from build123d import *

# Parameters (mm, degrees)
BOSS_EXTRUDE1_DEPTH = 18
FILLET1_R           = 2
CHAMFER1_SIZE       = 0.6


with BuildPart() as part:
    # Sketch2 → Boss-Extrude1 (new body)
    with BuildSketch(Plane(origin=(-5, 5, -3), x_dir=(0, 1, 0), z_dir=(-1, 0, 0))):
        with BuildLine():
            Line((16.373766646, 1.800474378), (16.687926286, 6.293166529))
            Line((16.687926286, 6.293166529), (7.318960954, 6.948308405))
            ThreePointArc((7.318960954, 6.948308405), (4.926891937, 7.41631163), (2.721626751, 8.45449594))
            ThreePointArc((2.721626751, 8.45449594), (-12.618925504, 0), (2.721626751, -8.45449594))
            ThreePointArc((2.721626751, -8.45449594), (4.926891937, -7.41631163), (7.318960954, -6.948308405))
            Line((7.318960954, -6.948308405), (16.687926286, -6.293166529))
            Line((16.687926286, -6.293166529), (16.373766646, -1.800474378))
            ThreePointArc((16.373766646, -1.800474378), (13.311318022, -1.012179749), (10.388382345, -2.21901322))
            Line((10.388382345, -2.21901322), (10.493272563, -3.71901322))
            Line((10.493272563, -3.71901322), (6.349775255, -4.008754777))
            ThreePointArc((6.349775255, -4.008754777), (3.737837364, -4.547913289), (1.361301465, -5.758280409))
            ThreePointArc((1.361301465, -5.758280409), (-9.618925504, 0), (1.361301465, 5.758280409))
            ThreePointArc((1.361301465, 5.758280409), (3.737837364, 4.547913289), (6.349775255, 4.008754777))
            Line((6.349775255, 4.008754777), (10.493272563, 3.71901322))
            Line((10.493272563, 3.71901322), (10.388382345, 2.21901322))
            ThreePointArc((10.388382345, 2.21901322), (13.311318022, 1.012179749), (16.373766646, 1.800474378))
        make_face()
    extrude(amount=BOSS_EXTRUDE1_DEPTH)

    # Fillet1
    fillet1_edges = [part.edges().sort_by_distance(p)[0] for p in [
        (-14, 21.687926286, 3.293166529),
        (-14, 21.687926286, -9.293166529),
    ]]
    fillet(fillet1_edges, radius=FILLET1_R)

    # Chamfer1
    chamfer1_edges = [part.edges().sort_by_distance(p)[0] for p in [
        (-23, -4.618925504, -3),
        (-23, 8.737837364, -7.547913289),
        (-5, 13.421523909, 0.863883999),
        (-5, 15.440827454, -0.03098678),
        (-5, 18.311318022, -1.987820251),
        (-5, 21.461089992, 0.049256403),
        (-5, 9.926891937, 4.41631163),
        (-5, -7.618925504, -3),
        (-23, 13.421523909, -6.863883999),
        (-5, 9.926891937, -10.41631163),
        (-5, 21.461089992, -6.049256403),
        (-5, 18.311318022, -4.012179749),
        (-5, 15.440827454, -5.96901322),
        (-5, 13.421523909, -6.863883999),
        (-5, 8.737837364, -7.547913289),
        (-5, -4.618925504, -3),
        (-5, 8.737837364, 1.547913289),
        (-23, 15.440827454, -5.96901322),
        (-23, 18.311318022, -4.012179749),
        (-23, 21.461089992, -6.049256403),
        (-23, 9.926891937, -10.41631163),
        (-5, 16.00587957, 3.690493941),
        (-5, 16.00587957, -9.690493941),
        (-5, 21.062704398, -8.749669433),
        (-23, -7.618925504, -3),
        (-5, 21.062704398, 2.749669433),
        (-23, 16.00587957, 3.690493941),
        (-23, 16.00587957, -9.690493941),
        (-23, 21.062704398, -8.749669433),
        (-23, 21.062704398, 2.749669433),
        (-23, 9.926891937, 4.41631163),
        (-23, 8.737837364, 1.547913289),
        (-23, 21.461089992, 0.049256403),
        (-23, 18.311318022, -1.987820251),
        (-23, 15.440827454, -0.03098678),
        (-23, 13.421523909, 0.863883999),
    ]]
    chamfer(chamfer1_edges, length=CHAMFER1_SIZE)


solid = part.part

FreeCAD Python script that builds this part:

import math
import FreeCAD as App
import Part
import Sketcher
Q = App.Units.Quantity


def edges_at(feature, points):
    """Names of the edges that pass closest to the given points."""
    edges = feature.Shape.Edges
    near = lambda p: min(range(len(edges)), key=lambda i: edges[i].distToShape(Part.Vertex(*p))[0])
    return sorted({f"Edge{near(p) + 1}" for p in points})

doc = App.newDocument("Part")
body = doc.addObject("PartDesign::Body", "Body")

sketch1 = body.newObject("Sketcher::SketchObject", "Sketch")
sketch1.AttachmentSupport = (doc.getObject("YZ_Plane"), [""])
sketch1.MapMode = "FlatFace"
sketch1.AttachmentOffset = App.Placement(App.Vector(0, 0, -5), App.Rotation())
sketch1.addGeometry(Part.LineSegment(App.Vector(21.373767, -4.800474, 0), App.Vector(21.687926, -9.293167, 0)), False)
sketch1.addGeometry(Part.LineSegment(App.Vector(21.687926, -9.293167, 0), App.Vector(12.318961, -9.948308, 0)), False)
sketch1.addGeometry(Part.ArcOfCircle(Part.Circle(App.Vector(13.009667, -19.825861, 0), App.Vector(0, 0, 1), 9.901673), math.radians(94), math.radians(122.279862)), False)
sketch1.addGeometry(Part.ArcOfCircle(Part.Circle(App.Vector(2.381074, -3, 0), App.Vector(0, 0, 1), 10), math.radians(57.720138), math.radians(302.279862)), False)
sketch1.addGeometry(Part.ArcOfCircle(Part.Circle(App.Vector(13.009667, 13.825861, 0), App.Vector(0, 0, 1), 9.901673), math.radians(-122.279862), math.radians(-94)), False)
sketch1.addGeometry(Part.LineSegment(App.Vector(12.318961, 3.948308, 0), App.Vector(21.687926, 3.293167, 0)), False)
sketch1.addGeometry(Part.LineSegment(App.Vector(21.687926, 3.293167, 0), App.Vector(21.373767, -1.199526, 0)), False)
sketch1.addGeometry(Part.ArcOfCircle(Part.Circle(App.Vector(18.6601, 3, 0), App.Vector(0, 0, 1), 5), math.radians(-130.869898), math.radians(-57.130102)), False)
sketch1.addGeometry(Part.LineSegment(App.Vector(15.388382, -0.780987, 0), App.Vector(15.493273, 0.719013, 0)), False)
sketch1.addGeometry(Part.LineSegment(App.Vector(15.493273, 0.719013, 0), App.Vector(11.349775, 1.008755, 0)), False)
sketch1.addGeometry(Part.ArcOfCircle(Part.Circle(App.Vector(12.04734, 10.984395, 0), App.Vector(0, 0, 1), 10), math.radians(-124.652925), math.radians(-94)), False)
sketch1.addGeometry(Part.ArcOfCircle(Part.Circle(App.Vector(2.381074, -3, 0), App.Vector(0, 0, 1), 7), math.radians(55.347075), math.radians(304.652925)), False)
sketch1.addGeometry(Part.ArcOfCircle(Part.Circle(App.Vector(12.04734, -16.984395, 0), App.Vector(0, 0, 1), 10), math.radians(94), math.radians(124.652925)), False)
sketch1.addGeometry(Part.LineSegment(App.Vector(11.349775, -7.008755, 0), App.Vector(15.493273, -6.719013, 0)), False)
sketch1.addGeometry(Part.LineSegment(App.Vector(15.493273, -6.719013, 0), App.Vector(15.388382, -5.219013, 0)), False)
sketch1.addGeometry(Part.ArcOfCircle(Part.Circle(App.Vector(18.6601, -9, 0), App.Vector(0, 0, 1), 5), math.radians(57.130102), math.radians(130.869898)), False)
sketch1.addConstraint(Sketcher.Constraint("Coincident", 0, 2, 1, 1))
sketch1.addConstraint(Sketcher.Constraint("Tangent", 1, 2, 2, 1))
sketch1.addConstraint(Sketcher.Constraint("Tangent", 2, 2, 3, 2))
sketch1.addConstraint(Sketcher.Constraint("Tangent", 3, 1, 4, 1))
sketch1.addConstraint(Sketcher.Constraint("Tangent", 4, 2, 5, 1))
sketch1.addConstraint(Sketcher.Constraint("Coincident", 5, 2, 6, 1))
sketch1.addConstraint(Sketcher.Constraint("Coincident", 6, 2, 7, 2))
sketch1.addConstraint(Sketcher.Constraint("Coincident", 7, 1, 8, 1))
sketch1.addConstraint(Sketcher.Constraint("Coincident", 8, 2, 9, 1))
sketch1.addConstraint(Sketcher.Constraint("Tangent", 9, 2, 10, 2))
sketch1.addConstraint(Sketcher.Constraint("Tangent", 10, 1, 11, 1))
sketch1.addConstraint(Sketcher.Constraint("Tangent", 11, 2, 12, 2))
sketch1.addConstraint(Sketcher.Constraint("Tangent", 12, 1, 13, 1))
sketch1.addConstraint(Sketcher.Constraint("Coincident", 13, 2, 14, 1))
sketch1.addConstraint(Sketcher.Constraint("Coincident", 14, 2, 15, 2))
sketch1.addConstraint(Sketcher.Constraint("Coincident", 15, 1, 0, 1))
sketch1.addConstraint(Sketcher.Constraint("Coincident", 11, 3, 3, 3))
sketch1.addConstraint(Sketcher.Constraint("Equal", 2, 4))
sketch1.addConstraint(Sketcher.Constraint("Equal", 3, 10))
sketch1.addConstraint(Sketcher.Constraint("Equal", 10, 12))
sketch1.addConstraint(Sketcher.Constraint("Equal", 7, 15))
sketch1.addConstraint(Sketcher.Constraint("Perpendicular", 0, 1))
sketch1.addConstraint(Sketcher.Constraint("Perpendicular", 5, 6))
sketch1.addConstraint(Sketcher.Constraint("Parallel", 6, 8))
sketch1.addConstraint(Sketcher.Constraint("Perpendicular", 8, 9))
sketch1.addConstraint(Sketcher.Constraint("Parallel", 1, 13))
sketch1.addConstraint(Sketcher.Constraint("Perpendicular", 13, 14))
sketch1.addConstraint(Sketcher.Constraint("Vertical", 2, 3, 4, 3))
sketch1.addConstraint(Sketcher.Constraint("Vertical", 10, 3, 12, 3))
sketch1.addConstraint(Sketcher.Constraint("Vertical", 7, 3, 15, 3))
sketch1.addConstraint(Sketcher.Constraint("Vertical", 1, 2, 4, 2))
sketch1.addConstraint(Sketcher.Constraint("Vertical", 0, 2, 5, 2))
sketch1.addConstraint(Sketcher.Constraint("Vertical", 8, 2, 13, 2))
sketch1.addConstraint(Sketcher.Constraint("Vertical", 7, 1, 14, 2))
sketch1.addConstraint(Sketcher.Constraint("Radius", 3, Q("10 mm")))
sketch1.addConstraint(Sketcher.Constraint("Radius", 7, Q("5 mm")))
sketch1.addConstraint(Sketcher.Constraint("Radius", 11, Q("7 mm")))
sketch1.addConstraint(Sketcher.Constraint("Angle", 0, Q("-86 deg")))
sketch1.addConstraint(Sketcher.Constraint("DistanceY", 3, 3, -1, 1, Q("3 mm")))
sketch1.addConstraint(Sketcher.Constraint("DistanceY", -1, 1, 7, 3, Q("3 mm")))
sketch1.addConstraint(Sketcher.Constraint("DistanceY", 7, 1, 8, 2, Q("1.5 mm")))
sketch1.addConstraint(Sketcher.Constraint("Radius", 2, Q("9.901673 mm")))
sketch1.addConstraint(Sketcher.Constraint("DistanceX", -1, 1, 7, 3, Q("18.6601 mm")))
sketch1.addConstraint(Sketcher.Constraint("DistanceX", -1, 1, 10, 1, Q("6.361301 mm")))
sketch1.addConstraint(Sketcher.Constraint("DistanceY", 12, 3, 2, 2, Q("5.529899 mm")))
sketch1.addConstraint(Sketcher.Constraint("DistanceY", 2, 3, -1, 1, Q("19.825861 mm")))
sketch1.addConstraint(Sketcher.Constraint("DistanceY", 12, 3, 0, 2, Q("7.691229 mm")))
pad1 = body.newObject("PartDesign::Pad", "Pad")
pad1.Profile = sketch1
pad1.Length = 18
pad1.Reversed = True
doc.recompute()

fillet = body.newObject("PartDesign::Fillet", "Fillet")
fillet.Base = (pad1, edges_at(pad1, [(-14, 21.688, 3.293), (-14, 21.688, -9.293)]))
fillet.Radius = 2
doc.recompute()

chamfer = body.newObject("PartDesign::Chamfer", "Chamfer")
chamfer.Base = (fillet, edges_at(fillet, [
    (-23, -4.619, -3),
    (-23, 8.738, -7.548),
    (-5, 13.422, 0.864),
    (-5, 15.441, -0.031),
    (-5, 18.311, -1.988),
    (-5, 21.461, 0.049),
    (-5, 9.927, 4.416),
    (-5, -7.619, -3),
    (-23, 13.422, -6.864),
    (-5, 9.927, -10.416),
    (-5, 21.461, -6.049),
    (-5, 18.311, -4.012),
    (-5, 15.441, -5.969),
    (-5, 13.422, -6.864),
    (-5, 8.738, -7.548),
    (-5, -4.619, -3),
    (-5, 8.738, 1.548),
    (-23, 15.441, -5.969),
    (-23, 18.311, -4.012),
    (-23, 21.461, -6.049),
    (-23, 9.927, -10.416),
    (-5, 16.006, 3.69),
    (-5, 16.006, -9.69),
    (-5, 21.063, -8.75),
    (-23, -7.619, -3),
    (-5, 21.063, 2.75),
    (-23, 16.006, 3.69),
    (-23, 16.006, -9.69),
    (-23, 21.063, -8.75),
    (-23, 21.063, 2.75),
    (-23, 9.927, 4.416),
    (-23, 8.738, 1.548),
    (-23, 21.461, 0.049),
    (-23, 18.311, -1.988),
    (-23, 15.441, -0.031),
    (-23, 13.422, 0.864),
]))
chamfer.Size = 0.6

doc.recompute()
